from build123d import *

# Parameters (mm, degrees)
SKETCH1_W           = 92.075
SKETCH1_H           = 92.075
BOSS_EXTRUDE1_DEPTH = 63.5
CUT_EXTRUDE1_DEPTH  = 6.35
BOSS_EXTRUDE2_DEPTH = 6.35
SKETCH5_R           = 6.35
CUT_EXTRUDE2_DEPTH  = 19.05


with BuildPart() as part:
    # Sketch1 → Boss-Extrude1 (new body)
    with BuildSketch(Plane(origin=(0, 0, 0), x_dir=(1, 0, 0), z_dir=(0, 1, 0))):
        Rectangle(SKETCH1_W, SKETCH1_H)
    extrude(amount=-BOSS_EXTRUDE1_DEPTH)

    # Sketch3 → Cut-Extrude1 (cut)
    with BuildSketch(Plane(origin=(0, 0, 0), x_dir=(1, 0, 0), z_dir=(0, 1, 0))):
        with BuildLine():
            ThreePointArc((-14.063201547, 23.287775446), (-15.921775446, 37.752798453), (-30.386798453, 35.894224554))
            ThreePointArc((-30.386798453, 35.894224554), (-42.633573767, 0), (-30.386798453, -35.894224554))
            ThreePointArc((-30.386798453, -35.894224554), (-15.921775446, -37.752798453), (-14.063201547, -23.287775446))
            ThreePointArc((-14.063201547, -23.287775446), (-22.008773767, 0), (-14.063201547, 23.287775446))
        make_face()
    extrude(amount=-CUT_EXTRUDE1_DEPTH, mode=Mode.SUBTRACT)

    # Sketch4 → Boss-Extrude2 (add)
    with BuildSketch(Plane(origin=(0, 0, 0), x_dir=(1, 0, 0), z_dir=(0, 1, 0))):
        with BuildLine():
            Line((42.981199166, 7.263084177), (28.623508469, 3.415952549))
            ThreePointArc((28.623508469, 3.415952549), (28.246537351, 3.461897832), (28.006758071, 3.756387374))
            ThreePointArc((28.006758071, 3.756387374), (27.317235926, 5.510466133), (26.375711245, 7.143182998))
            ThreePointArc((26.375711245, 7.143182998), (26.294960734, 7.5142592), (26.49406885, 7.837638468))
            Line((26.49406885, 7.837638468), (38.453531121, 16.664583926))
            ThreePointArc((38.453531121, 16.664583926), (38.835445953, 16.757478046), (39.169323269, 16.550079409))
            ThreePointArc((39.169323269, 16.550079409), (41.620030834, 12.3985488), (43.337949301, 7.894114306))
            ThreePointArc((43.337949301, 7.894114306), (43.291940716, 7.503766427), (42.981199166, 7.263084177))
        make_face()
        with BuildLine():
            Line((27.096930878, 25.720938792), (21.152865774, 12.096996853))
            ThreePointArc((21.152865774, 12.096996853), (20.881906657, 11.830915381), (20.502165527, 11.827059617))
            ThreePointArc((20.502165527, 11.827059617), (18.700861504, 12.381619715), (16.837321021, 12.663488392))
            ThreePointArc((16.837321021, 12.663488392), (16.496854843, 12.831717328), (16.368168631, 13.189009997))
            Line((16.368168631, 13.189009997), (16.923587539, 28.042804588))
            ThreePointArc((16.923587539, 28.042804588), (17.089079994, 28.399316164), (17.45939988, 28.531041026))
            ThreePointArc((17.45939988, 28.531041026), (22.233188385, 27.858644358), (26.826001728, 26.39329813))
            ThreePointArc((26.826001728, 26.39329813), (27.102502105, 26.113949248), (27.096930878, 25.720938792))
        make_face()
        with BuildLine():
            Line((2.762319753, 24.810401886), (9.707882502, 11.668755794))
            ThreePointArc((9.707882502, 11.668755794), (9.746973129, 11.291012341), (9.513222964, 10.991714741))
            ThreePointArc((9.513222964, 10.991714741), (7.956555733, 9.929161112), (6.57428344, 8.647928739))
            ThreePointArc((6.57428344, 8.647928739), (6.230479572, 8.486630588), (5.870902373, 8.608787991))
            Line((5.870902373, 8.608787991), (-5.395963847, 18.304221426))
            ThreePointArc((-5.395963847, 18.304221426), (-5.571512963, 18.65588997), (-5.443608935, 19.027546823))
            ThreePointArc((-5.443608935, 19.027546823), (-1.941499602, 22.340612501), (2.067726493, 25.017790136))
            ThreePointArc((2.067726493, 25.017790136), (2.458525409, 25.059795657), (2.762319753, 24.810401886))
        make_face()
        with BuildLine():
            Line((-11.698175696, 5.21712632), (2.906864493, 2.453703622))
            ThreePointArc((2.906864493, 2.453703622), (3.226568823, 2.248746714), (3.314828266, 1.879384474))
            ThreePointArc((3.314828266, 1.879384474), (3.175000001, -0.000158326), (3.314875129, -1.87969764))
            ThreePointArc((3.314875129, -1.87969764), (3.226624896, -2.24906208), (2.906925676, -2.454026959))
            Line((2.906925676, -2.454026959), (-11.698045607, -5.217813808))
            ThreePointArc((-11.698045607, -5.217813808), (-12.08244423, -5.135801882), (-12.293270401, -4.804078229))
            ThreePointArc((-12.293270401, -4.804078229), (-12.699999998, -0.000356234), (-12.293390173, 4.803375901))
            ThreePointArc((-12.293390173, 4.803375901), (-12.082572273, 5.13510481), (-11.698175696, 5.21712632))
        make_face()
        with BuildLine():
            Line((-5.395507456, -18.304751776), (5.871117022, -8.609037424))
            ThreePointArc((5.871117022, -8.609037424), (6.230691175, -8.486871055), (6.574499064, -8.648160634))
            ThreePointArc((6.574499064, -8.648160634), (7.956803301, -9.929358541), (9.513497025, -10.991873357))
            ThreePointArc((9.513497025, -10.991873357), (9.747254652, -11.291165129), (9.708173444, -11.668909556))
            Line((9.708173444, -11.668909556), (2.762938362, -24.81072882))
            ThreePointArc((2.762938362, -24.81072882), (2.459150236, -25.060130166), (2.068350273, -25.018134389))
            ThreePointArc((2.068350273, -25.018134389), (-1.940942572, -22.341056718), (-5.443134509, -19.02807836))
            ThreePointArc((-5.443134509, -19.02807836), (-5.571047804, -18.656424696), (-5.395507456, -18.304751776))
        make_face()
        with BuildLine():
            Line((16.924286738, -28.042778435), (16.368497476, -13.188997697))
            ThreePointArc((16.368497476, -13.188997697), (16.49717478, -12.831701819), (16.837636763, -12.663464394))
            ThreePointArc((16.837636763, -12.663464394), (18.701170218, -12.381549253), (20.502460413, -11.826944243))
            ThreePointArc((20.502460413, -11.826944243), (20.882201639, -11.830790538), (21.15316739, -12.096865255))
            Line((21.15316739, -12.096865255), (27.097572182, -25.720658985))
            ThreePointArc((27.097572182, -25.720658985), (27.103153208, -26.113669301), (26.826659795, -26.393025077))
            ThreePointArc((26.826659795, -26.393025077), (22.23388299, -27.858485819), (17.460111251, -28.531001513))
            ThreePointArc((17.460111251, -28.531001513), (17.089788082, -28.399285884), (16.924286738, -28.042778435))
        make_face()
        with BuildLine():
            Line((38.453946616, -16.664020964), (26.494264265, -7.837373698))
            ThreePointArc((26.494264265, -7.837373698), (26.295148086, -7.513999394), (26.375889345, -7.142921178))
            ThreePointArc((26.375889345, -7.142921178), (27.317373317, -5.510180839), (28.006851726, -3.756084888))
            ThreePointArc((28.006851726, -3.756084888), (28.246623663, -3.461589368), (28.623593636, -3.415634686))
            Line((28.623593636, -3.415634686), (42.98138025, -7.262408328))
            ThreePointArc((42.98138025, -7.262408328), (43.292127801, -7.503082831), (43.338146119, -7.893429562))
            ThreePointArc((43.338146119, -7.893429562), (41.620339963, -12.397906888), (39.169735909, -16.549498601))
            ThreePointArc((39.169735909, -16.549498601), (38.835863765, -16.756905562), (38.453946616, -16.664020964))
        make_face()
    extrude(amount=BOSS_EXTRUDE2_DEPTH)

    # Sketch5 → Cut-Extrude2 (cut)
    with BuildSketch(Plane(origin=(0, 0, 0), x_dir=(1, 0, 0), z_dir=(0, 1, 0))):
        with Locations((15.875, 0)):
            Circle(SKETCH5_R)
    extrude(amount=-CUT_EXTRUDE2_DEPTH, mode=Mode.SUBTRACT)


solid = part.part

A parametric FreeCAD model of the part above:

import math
import FreeCAD as App
import Part
import Sketcher

V = App.Vector
Q = App.Units.Quantity


def add_polygon(sketch, points):
    """Adds a closed chain of lines whose ends are joined by coincident constraints."""
    first, n = sketch.GeometryCount, len(points)
    for a, b in zip(points, points[1:] + points[:1]):
        sketch.addGeometry(Part.LineSegment(App.Vector(*a, 0), App.Vector(*b, 0)), False)
    for i in range(n):
        sketch.addConstraint(Sketcher.Constraint("Coincident", first + i, 2, first + (i + 1) % n, 1))

doc = App.newDocument("Part")
body = doc.addObject("PartDesign::Body", "Body")

# Sketch on XZ plane
sketch1 = body.newObject("Sketcher::SketchObject", "Sketch")
sketch1.AttachmentSupport = (doc.getObject("XZ_Plane"), [""])
sketch1.MapMode = "FlatFace"
add_polygon(sketch1, [(-46, -46), (-46, 46), (46, 46), (46, -46)])  # lines 0-3
sketch1.addConstraint(Sketcher.Constraint("Vertical", 0))
sketch1.addConstraint(Sketcher.Constraint("Horizontal", 1))
sketch1.addConstraint(Sketcher.Constraint("Vertical", 2))
sketch1.addConstraint(Sketcher.Constraint("Horizontal", 3))
sketch1.addConstraint(Sketcher.Constraint("Symmetric", 0, 2, 2, 2, -1, 1))
sketch1.addConstraint(Sketcher.Constraint("Equal", 3, 0))
sketch1.addConstraint(Sketcher.Constraint("DistanceX", 1, 1, 1, 2, Q("3.625 in")))
pad1 = body.newObject("PartDesign::Pad", "Pad")
pad1.Profile = sketch1
pad1.Length = Q("2.5 in")

# Sketch on XZ plane
sketch2 = body.newObject("Sketcher::SketchObject", "Sketch001")
sketch2.AttachmentSupport = (doc.getObject("XZ_Plane"), [""])
sketch2.MapMode = "FlatFace"
sketch2.addGeometry(Part.ArcOfCircle(Part.Circle(V(-22, -30, 0), V(0, 0, 1), 10), math.radians(-142), math.radians(38)), False)
sketch2.addGeometry(Part.ArcOfCircle(Part.Circle(V(16, 0, 0), V(0, 0, 1), 59), math.radians(142), math.radians(218)), False)
sketch2.addGeometry(Part.ArcOfCircle(Part.Circle(V(-22, 30, 0), V(0, 0, 1), 10), math.radians(-38), math.radians(142)), False)
sketch2.addGeometry(Part.ArcOfCircle(Part.Circle(V(16, 0, 0), V(0, 0, 1), 38), math.radians(142), math.radians(218)), False)
sketch2.addConstraint(Sketcher.Constraint("Tangent", 0, 1, 1, 2))
sketch2.addConstraint(Sketcher.Constraint("Tangent", 1, 1, 2, 2))
sketch2.addConstraint(Sketcher.Constraint("Tangent", 2, 1, 3, 1))
sketch2.addConstraint(Sketcher.Constraint("Tangent", 3, 2, 0, 2))
sketch2.addConstraint(Sketcher.Constraint("Coincident", 3, 3, 1, 3))
sketch2.addConstraint(Sketcher.Constraint("Symmetric", 0, 3, 2, 3, -1))
sketch2.addConstraint(Sketcher.Constraint("Radius", 3, Q("1.5 in")))
sketch2.addConstraint(Sketcher.Constraint("Radius", 0, Q("0.406 in")))
sketch2.addConstraint(Sketcher.Constraint("DistanceY", 0, 3, 2, 3, Q("2.33 in")))
sketch2.addConstraint(Sketcher.Constraint("DistanceX", 0, 3, -1, 1, Q("0.875 in")))
pocket1 = body.newObject("PartDesign::Pocket", "Pocket")
pocket1.Profile = sketch2
pocket1.Length = Q("0.25 in")
pocket1.Reversed = True

# Sketch on XZ plane
sketch3 = body.newObject("Sketcher::SketchObject", "Sketch002")
sketch3.AttachmentSupport = (doc.getObject("XZ_Plane"), [""])
sketch3.MapMode = "FlatFace"
sketch3.addGeometry(Part.LineSegment(V(28.623508, -3.415953, 0), V(42.981199, -7.263084, 0)), False)
sketch3.addGeometry(Part.ArcOfCircle(Part.Circle(V(42.849719, -7.753774, 0), V(0, 0, 1), 0.508), math.radians(-16.037084), math.radians(75)), False)
sketch3.addGeometry(Part.ArcOfCircle(Part.Circle(V(15.875, 0, 0), V(0, 0, 1), 28.575), math.radians(-35.392916), math.radians(-16.037084)), False)
sketch3.addGeometry(Part.ArcOfCircle(Part.Circle(V(38.755202, -16.255856, 0), V(0, 0, 1), 0.508), math.radians(-126.43), math.radians(-35.392916)), False)
sketch3.addGeometry(Part.LineSegment(V(38.453531, -16.664584, 0), V(26.494069, -7.837638, 0)), False)
sketch3.addGeometry(Part.ArcOfCircle(Part.Circle(V(26.79574, -7.42891, 0), V(0, 0, 1), 0.508), math.radians(145.774228), math.radians(233.57)), False)
sketch3.addGeometry(Part.ArcOfCircle(Part.Circle(V(15.875, 0, 0), V(0, 0, 1), 12.7), math.radians(-34.225772), math.radians(-17.204228)), False)
sketch3.addGeometry(Part.ArcOfCircle(Part.Circle(V(28.492028, -3.906643, 0), V(0, 0, 1), 0.508), math.radians(75), math.radians(162.795772)), False)
sketch3.addGeometry(Part.LineSegment(V(21.152866, -12.096997, 0), V(27.096931, -25.720939, 0)), False)
sketch3.addGeometry(Part.ArcOfCircle(Part.Circle(V(26.631317, -25.924084, 0), V(0, 0, 1), 0.508), math.radians(-67.465656), math.radians(23.571429)), False)
sketch3.addGeometry(Part.ArcOfCircle(Part.Circle(V(15.875, 0, 0), V(0, 0, 1), 28.575), math.radians(-86.821487), math.radians(-67.465656)), False)
sketch3.addGeometry(Part.ArcOfCircle(Part.Circle(V(17.431233, -28.023823, 0), V(0, 0, 1), 0.508), math.radians(-177.858571), math.radians(-86.821487)), False)
sketch3.addGeometry(Part.LineSegment(V(16.923588, -28.042805, 0), V(16.368169, -13.18901, 0)), False)
sketch3.addGeometry(Part.ArcOfCircle(Part.Circle(V(16.875814, -13.170028, 0), V(0, 0, 1), 0.508), math.radians(94.345656), math.radians(182.141429)), False)
sketch3.addGeometry(Part.ArcOfCircle(Part.Circle(V(15.875, 0, 0), V(0, 0, 1), 12.7), math.radians(-85.654344), math.radians(-68.632799)), False)
sketch3.addGeometry(Part.ArcOfCircle(Part.Circle(V(20.687252, -12.300142, 0), V(0, 0, 1), 0.508), math.radians(23.571429), math.radians(111.367201)), False)
sketch3.addGeometry(Part.LineSegment(V(9.707883, -11.668756, 0), V(2.76232, -24.810402, 0)), False)
sketch3.addGeometry(Part.ArcOfCircle(Part.Circle(V(2.313189, -24.573029, 0), V(0, 0, 1), 0.508), math.radians(-118.894227), math.radians(-27.857143)), False)
sketch3.addGeometry(Part.ArcOfCircle(Part.Circle(V(15.875, 0, 0), V(0, 0, 1), 28.575), math.radians(-138.250059), math.radians(-118.894227)), False)
sketch3.addGeometry(Part.ArcOfCircle(Part.Circle(V(-5.064611, -18.689279, 0), V(0, 0, 1), 0.508), math.radians(130.712857), math.radians(221.749941)), False)
sketch3.addGeometry(Part.LineSegment(V(-5.395964, -18.304221, 0), V(5.870902, -8.608788, 0)), False)
sketch3.addGeometry(Part.ArcOfCircle(Part.Circle(V(6.202255, -8.993846, 0), V(0, 0, 1), 0.508), math.radians(42.917085), math.radians(130.712857)), False)
sketch3.addGeometry(Part.ArcOfCircle(Part.Circle(V(15.875, 0, 0), V(0, 0, 1), 12.7), math.radians(-137.082915), math.radians(-120.06137)), False)
sketch3.addGeometry(Part.ArcOfCircle(Part.Circle(V(9.258752, -11.431383, 0), V(0, 0, 1), 0.508), math.radians(-27.857143), math.radians(59.93863)), False)
sketch3.addGeometry(Part.LineSegment(V(2.906864, -2.453704, 0), V(-11.698176, -5.217126, 0)), False)
sketch3.addGeometry(Part.ArcOfCircle(Part.Circle(V(-11.792619, -4.717983, 0), V(0, 0, 1), 0.508), math.radians(-170.322798), math.radians(-79.285714)), False)
sketch3.addGeometry(Part.ArcOfCircle(Part.Circle(V(15.875, 0, 0), V(0, 0, 1), 28.575), math.radians(170.32137), math.radians(189.677201)), False)
sketch3.addGeometry(Part.ArcOfCircle(Part.Circle(V(-11.792501, 4.718672, 0), V(0, 0, 1), 0.508), math.radians(79.284286), math.radians(170.32137)), False)
sketch3.addGeometry(Part.LineSegment(V(-11.698046, 5.217814, 0), V(2.906926, 2.454027, 0)), False)
sketch3.addGeometry(Part.ArcOfCircle(Part.Circle(V(2.81247, 1.954886, 0), V(0, 0, 1), 0.508), math.radians(-8.511487), math.radians(79.284286)), False)
sketch3.addGeometry(Part.ArcOfCircle(Part.Circle(V(15.875, 0, 0), V(0, 0, 1), 12.7), math.radians(171.488513), math.radians(188.510058)), False)
sketch3.addGeometry(Part.ArcOfCircle(Part.Circle(V(2.812421, -1.95456, 0), V(0, 0, 1), 0.508), math.radians(-79.285714), math.radians(8.510058)), False)
sketch3.addGeometry(Part.LineSegment(V(5.871117, 8.609037, 0), V(-5.395507, 18.304752, 0)), False)
sketch3.addGeometry(Part.ArcOfCircle(Part.Circle(V(-5.064145, 18.689801, 0), V(0, 0, 1), 0.508), math.radians(138.24863), math.radians(229.285714)), False)
sketch3.addGeometry(Part.ArcOfCircle(Part.Circle(V(15.875, 0, 0), V(0, 0, 1), 28.575), math.radians(118.892799), math.radians(138.24863)), False)
sketch3.addGeometry(Part.ArcOfCircle(Part.Circle(V(2.313802, 24.573368, 0), V(0, 0, 1), 0.508), math.radians(27.855714), math.radians(118.892799)), False)
sketch3.addGeometry(Part.LineSegment(V(2.762938, 24.810729, 0), V(9.708173, 11.66891, 0)), False)
sketch3.addGeometry(Part.ArcOfCircle(Part.Circle(V(9.259037, 11.431548, 0), V(0, 0, 1), 0.508), math.radians(-59.940058), math.radians(27.855714)), False)
sketch3.addGeometry(Part.ArcOfCircle(Part.Circle(V(15.875, 0, 0), V(0, 0, 1), 12.7), math.radians(120.059942), math.radians(137.081487)), False)
sketch3.addGeometry(Part.ArcOfCircle(Part.Circle(V(6.202479, 8.994087, 0), V(0, 0, 1), 0.508), math.radians(-130.714286), math.radians(-42.918513)), False)
sketch3.addGeometry(Part.LineSegment(V(16.368497, 13.188998, 0), V(16.924287, 28.042778, 0)), False)
sketch3.addGeometry(Part.ArcOfCircle(Part.Circle(V(17.431931, 28.023784, 0), V(0, 0, 1), 0.508), math.radians(86.820059), math.radians(177.857143)), False)
sketch3.addGeometry(Part.ArcOfCircle(Part.Circle(V(15.875, 0, 0), V(0, 0, 1), 28.575), math.radians(67.464227), math.radians(86.820059)), False)
sketch3.addGeometry(Part.ArcOfCircle(Part.Circle(V(26.631964, 25.923816, 0), V(0, 0, 1), 0.508), math.radians(-23.572857), math.radians(67.464227)), False)
sketch3.addGeometry(Part.LineSegment(V(27.097572, 25.720659, 0), V(21.153167, 12.096865, 0)), False)
sketch3.addGeometry(Part.ArcOfCircle(Part.Circle(V(20.687559, 12.300022, 0), V(0, 0, 1), 0.508), math.radians(-111.36863), math.radians(-23.572857)), False)
sketch3.addGeometry(Part.ArcOfCircle(Part.Circle(V(15.875, 0, 0), V(0, 0, 1), 12.7), math.radians(68.63137), math.radians(85.652915)), False)
sketch3.addGeometry(Part.ArcOfCircle(Part.Circle(V(16.876142, 13.170003, 0), V(0, 0, 1), 0.508), math.radians(177.857143), math.radians(265.652915)), False)
sketch3.addGeometry(Part.LineSegment(V(26.494264, 7.837374, 0), V(38.453947, 16.664021, 0)), False)
sketch3.addGeometry(Part.ArcOfCircle(Part.Circle(V(38.755607, 16.255285, 0), V(0, 0, 1), 0.508), math.radians(35.391487), math.radians(126.428572)), False)
sketch3.addGeometry(Part.ArcOfCircle(Part.Circle(V(15.875, 0, 0), V(0, 0, 1), 28.575), math.radians(16.035656), math.radians(35.391487)), False)
sketch3.addGeometry(Part.ArcOfCircle(Part.Circle(V(42.849912, 7.753102, 0), V(0, 0, 1), 0.508), math.radians(-75.001429), math.radians(16.035656)), False)
sketch3.addGeometry(Part.LineSegment(V(42.98138, 7.262408, 0), V(28.623594, 3.415635, 0)), False)
sketch3.addGeometry(Part.ArcOfCircle(Part.Circle(V(28.492126, 3.906328, 0), V(0, 0, 1), 0.508), math.radians(-162.797201), math.radians(-75.001429)), False)
sketch3.addGeometry(Part.ArcOfCircle(Part.Circle(V(15.875, 0, 0), V(0, 0, 1), 12.7), math.radians(17.202799), math.radians(34.224344)), False)
sketch3.addGeometry(Part.ArcOfCircle(Part.Circle(V(26.795925, 7.428638, 0), V(0, 0, 1), 0.508), math.radians(126.428572), math.radians(214.224344)), False)
sketch3.addConstraint(Sketcher.Constraint("Coincident", 0, 2, 1, 2))
sketch3.addConstraint(Sketcher.Constraint("Coincident", 1, 1, 2, 2))
sketch3.addConstraint(Sketcher.Constraint("Coincident", 2, 1, 3, 2))
sketch3.addConstraint(Sketcher.Constraint("Coincident", 3, 1, 4, 1))
sketch3.addConstraint(Sketcher.Constraint("Coincident", 4, 2, 5, 2))
sketch3.addConstraint(Sketcher.Constraint("Coincident", 5, 1, 6, 1))
sketch3.addConstraint(Sketcher.Constraint("Coincident", 6, 2, 7, 2))
sketch3.addConstraint(Sketcher.Constraint("Coincident", 7, 1, 0, 1))
sketch3.addConstraint(Sketcher.Constraint("Coincident", 8, 2, 9, 2))
sketch3.addConstraint(Sketcher.Constraint("Coincident", 9, 1, 10, 2))
sketch3.addConstraint(Sketcher.Constraint("Coincident", 10, 1, 11, 2))
sketch3.addConstraint(Sketcher.Constraint("Coincident", 11, 1, 12, 1))
sketch3.addConstraint(Sketcher.Constraint("Coincident", 12, 2, 13, 2))
sketch3.addConstraint(Sketcher.Constraint("Coincident", 13, 1, 14, 1))
sketch3.addConstraint(Sketcher.Constraint("Coincident", 14, 2, 15, 2))
sketch3.addConstraint(Sketcher.Constraint("Coincident", 15, 1, 8, 1))
sketch3.addConstraint(Sketcher.Constraint("Coincident", 16, 2, 17, 2))
sketch3.addConstraint(Sketcher.Constraint("Coincident", 17, 1, 18, 2))
sketch3.addConstraint(Sketcher.Constraint("Coincident", 18, 1, 19, 2))
sketch3.addConstraint(Sketcher.Constraint("Coincident", 19, 1, 20, 1))
sketch3.addConstraint(Sketcher.Constraint("Coincident", 20, 2, 21, 2))
sketch3.addConstraint(Sketcher.Constraint("Coincident", 21, 1, 22, 1))
sketch3.addConstraint(Sketcher.Constraint("Coincident", 22, 2, 23, 2))
sketch3.addConstraint(Sketcher.Constraint("Coincident", 23, 1, 16, 1))
sketch3.addConstraint(Sketcher.Constraint("Coincident", 24, 2, 25, 2))
sketch3.addConstraint(Sketcher.Constraint("Coincident", 25, 1, 26, 2))
sketch3.addConstraint(Sketcher.Constraint("Coincident", 26, 1, 27, 2))
sketch3.addConstraint(Sketcher.Constraint("Coincident", 27, 1, 28, 1))
sketch3.addConstraint(Sketcher.Constraint("Coincident", 28, 2, 29, 2))
sketch3.addConstraint(Sketcher.Constraint("Coincident", 29, 1, 30, 1))
sketch3.addConstraint(Sketcher.Constraint("Coincident", 30, 2, 31, 2))
sketch3.addConstraint(Sketcher.Constraint("Coincident", 31, 1, 24, 1))
sketch3.addConstraint(Sketcher.Constraint("Coincident", 32, 2, 33, 2))
sketch3.addConstraint(Sketcher.Constraint("Coincident", 33, 1, 34, 2))
sketch3.addConstraint(Sketcher.Constraint("Coincident", 34, 1, 35, 2))
sketch3.addConstraint(Sketcher.Constraint("Coincident", 35, 1, 36, 1))
sketch3.addConstraint(Sketcher.Constraint("Coincident", 36, 2, 37, 2))
sketch3.addConstraint(Sketcher.Constraint("Coincident", 37, 1, 38, 1))
sketch3.addConstraint(Sketcher.Constraint("Coincident", 38, 2, 39, 2))
sketch3.addConstraint(Sketcher.Constraint("Coincident", 39, 1, 32, 1))
sketch3.addConstraint(Sketcher.Constraint("Coincident", 40, 2, 41, 2))
sketch3.addConstraint(Sketcher.Constraint("Coincident", 41, 1, 42, 2))
sketch3.addConstraint(Sketcher.Constraint("Coincident", 42, 1, 43, 2))
sketch3.addConstraint(Sketcher.Constraint("Coincident", 43, 1, 44, 1))
sketch3.addConstraint(Sketcher.Constraint("Coincident", 44, 2, 45, 2))
sketch3.addConstraint(Sketcher.Constraint("Coincident", 45, 1, 46, 1))
sketch3.addConstraint(Sketcher.Constraint("Coincident", 46, 2, 47, 2))
sketch3.addConstraint(Sketcher.Constraint("Coincident", 47, 1, 40, 1))
sketch3.addConstraint(Sketcher.Constraint("Coincident", 48, 2, 49, 2))
sketch3.addConstraint(Sketcher.Constraint("Coincident", 49, 1, 50, 2))
sketch3.addConstraint(Sketcher.Constraint("Coincident", 50, 1, 51, 2))
sketch3.addConstraint(Sketcher.Constraint("Coincident", 51, 1, 52, 1))
sketch3.addConstraint(Sketcher.Constraint("Coincident", 52, 2, 53, 2))
sketch3.addConstraint(Sketcher.Constraint("Coincident", 53, 1, 54, 1))
sketch3.addConstraint(Sketcher.Constraint("Coincident", 54, 2, 55, 2))
sketch3.addConstraint(Sketcher.Constraint("Coincident", 55, 1, 48, 1))
sketch3.addConstraint(Sketcher.Constraint("Coincident", 6, 3, 2, 3))
sketch3.addConstraint(Sketcher.Constraint("Coincident", 10, 3, 2, 3))
sketch3.addConstraint(Sketcher.Constraint("Coincident", 14, 3, 2, 3))
sketch3.addConstraint(Sketcher.Constraint("Coincident", 18, 3, 2, 3))
sketch3.addConstraint(Sketcher.Constraint("Coincident", 22, 3, 2, 3))
sketch3.addConstraint(Sketcher.Constraint("Coincident", 26, 3, 2, 3))
sketch3.addConstraint(Sketcher.Constraint("Coincident", 30, 3, 2, 3))
sketch3.addConstraint(Sketcher.Constraint("Coincident", 34, 3, 2, 3))
sketch3.addConstraint(Sketcher.Constraint("Coincident", 38, 3, 2, 3))
sketch3.addConstraint(Sketcher.Constraint("Coincident", 42, 3, 2, 3))
sketch3.addConstraint(Sketcher.Constraint("Coincident", 46, 3, 2, 3))
sketch3.addConstraint(Sketcher.Constraint("Coincident", 50, 3, 2, 3))
sketch3.addConstraint(Sketcher.Constraint("Coincident", 54, 3, 2, 3))
sketch3.addConstraint(Sketcher.Constraint("PointOnObject", 2, 3, -1))
sketch3.addConstraint(Sketcher.Constraint("Radius", 6, Q("0.5 in")))
sketch3.addConstraint(Sketcher.Constraint("Radius", 14, Q("0.5 in")))
sketch3.addConstraint(Sketcher.Constraint("Radius", 22, Q("0.5 in")))
sketch3.addConstraint(Sketcher.Constraint("Radius", 30, Q("0.5 in")))
sketch3.addConstraint(Sketcher.Constraint("Radius", 38, Q("0.5 in")))
sketch3.addConstraint(Sketcher.Constraint("Radius", 46, Q("0.5 in")))
sketch3.addConstraint(Sketcher.Constraint("Radius", 54, Q("0.5 in")))
sketch3.addConstraint(Sketcher.Constraint("Radius", 1, Q("0.02 in")))
sketch3.addConstraint(Sketcher.Constraint("Radius", 3, Q("0.02 in")))
sketch3.addConstraint(Sketcher.Constraint("Radius", 5, Q("0.02 in")))
sketch3.addConstraint(Sketcher.Constraint("Radius", 7, Q("0.02 in")))
sketch3.addConstraint(Sketcher.Constraint("Radius", 9, Q("0.02 in")))
sketch3.addConstraint(Sketcher.Constraint("Radius", 11, Q("0.02 in")))
sketch3.addConstraint(Sketcher.Constraint("Radius", 13, Q("0.02 in")))
sketch3.addConstraint(Sketcher.Constraint("Radius", 15, Q("0.02 in")))
sketch3.addConstraint(Sketcher.Constraint("Radius", 17, Q("0.02 in")))
sketch3.addConstraint(Sketcher.Constraint("Radius", 19, Q("0.02 in")))
sketch3.addConstraint(Sketcher.Constraint("Radius", 21, Q("0.02 in")))
sketch3.addConstraint(Sketcher.Constraint("Radius", 23, Q("0.02 in")))
sketch3.addConstraint(Sketcher.Constraint("Radius", 25, Q("0.02 in")))
sketch3.addConstraint(Sketcher.Constraint("Radius", 27, Q("0.02 in")))
sketch3.addConstraint(Sketcher.Constraint("Radius", 29, Q("0.02 in")))
sketch3.addConstraint(Sketcher.Constraint("Radius", 31, Q("0.02 in")))
sketch3.addConstraint(Sketcher.Constraint("Radius", 33, Q("0.02 in")))
sketch3.addConstraint(Sketcher.Constraint("Radius", 35, Q("0.02 in")))
sketch3.addConstraint(Sketcher.Constraint("Radius", 37, Q("0.02 in")))
sketch3.addConstraint(Sketcher.Constraint("Radius", 39, Q("0.02 in")))
sketch3.addConstraint(Sketcher.Constraint("Radius", 41, Q("0.02 in")))
sketch3.addConstraint(Sketcher.Constraint("Radius", 43, Q("0.02 in")))
sketch3.addConstraint(Sketcher.Constraint("Radius", 45, Q("0.02 in")))
sketch3.addConstraint(Sketcher.Constraint("Radius", 47, Q("0.02 in")))
sketch3.addConstraint(Sketcher.Constraint("Radius", 49, Q("0.02 in")))
sketch3.addConstraint(Sketcher.Constraint("Radius", 51, Q("0.02 in")))
sketch3.addConstraint(Sketcher.Constraint("Radius", 53, Q("0.02 in")))
sketch3.addConstraint(Sketcher.Constraint("Radius", 55, Q("0.02 in")))
sketch3.addConstraint(Sketcher.Constraint("Radius", 2, Q("1.125 in")))
sketch3.addConstraint(Sketcher.Constraint("Radius", 10, Q("1.125 in")))
sketch3.addConstraint(Sketcher.Constraint("Radius", 18, Q("1.125 in")))
sketch3.addConstraint(Sketcher.Constraint("Radius", 26, Q("1.125 in")))
sketch3.addConstraint(Sketcher.Constraint("Radius", 34, Q("1.125 in")))
sketch3.addConstraint(Sketcher.Constraint("Radius", 42, Q("1.125 in")))
sketch3.addConstraint(Sketcher.Constraint("Radius", 50, Q("1.125 in")))
sketch3.addConstraint(Sketcher.Constraint("DistanceX", -1, 1, 2, 3, Q("0.625 in")))
sketch3.addConstraint(Sketcher.Constraint("DistanceY", 11, 3, -1, 1, Q("1.1033001 in")))
sketch3.addConstraint(Sketcher.Constraint("DistanceX", -1, 1, 23, 1, Q("0.3822001 in")))
sketch3.addConstraint(Sketcher.Constraint("DistanceY", 23, 1, -1, 1, Q("0.4593998 in")))
sketch3.addConstraint(Sketcher.Constraint("DistanceX", -1, 1, 3, 3, 38.755202))
sketch3.addConstraint(Sketcher.Constraint("DistanceX", 27, 3, -1, 1, 11.792501))
sketch3.addConstraint(Sketcher.Constraint("DistanceY", -1, 1, 33, 3, 18.689801))
sketch3.addConstraint(Sketcher.Constraint("DistanceX", -1, 1, 35, 3, 2.313802))
sketch3.addConstraint(Sketcher.Constraint("DistanceY", -1, 1, 51, 3, 7.753102))
sketch3.addConstraint(Sketcher.Constraint("DistanceX", -1, 1, 0, 2, 42.981199))
sketch3.addConstraint(Sketcher.Constraint("DistanceX", -1, 1, 9, 1, 26.826002))
sketch3.addConstraint(Sketcher.Constraint("DistanceX", -1, 1, 10, 1, 17.4594))
sketch3.addConstraint(Sketcher.Constraint("DistanceY", 16, 2, -1, 1, 24.810402))
sketch3.addConstraint(Sketcher.Constraint("DistanceX", -1, 1, 38, 2, 6.574499))
sketch3.addConstraint(Sketcher.Constraint("DistanceY", -1, 1, 41, 1, 28.531002))
sketch3.addConstraint(Sketcher.Constraint("DistanceY", -1, 1, 49, 1, 16.549499))
sketch3.addConstraint(Sketcher.Constraint("DistanceX", -1, 1, 1, 3, 42.849719))
sketch3.addConstraint(Sketcher.Constraint("DistanceX", -1, 1, 5, 3, 26.79574))
sketch3.addConstraint(Sketcher.Constraint("DistanceX", -1, 1, 7, 3, 28.492028))
sketch3.addConstraint(Sketcher.Constraint("DistanceX", -1, 1, 17, 3, 2.313189))
sketch3.addConstraint(Sketcher.Constraint("DistanceX", 19, 3, -1, 1, 5.064611))
sketch3.addConstraint(Sketcher.Constraint("DistanceX", 25, 3, -1, 1, 11.792619))
sketch3.addConstraint(Sketcher.Constraint("DistanceX", -1, 1, 29, 3, 2.81247))
sketch3.addConstraint(Sketcher.Constraint("DistanceX", -1, 1, 31, 3, 2.812421))
sketch3.addConstraint(Sketcher.Constraint("DistanceY", -1, 1, 37, 3, 11.431548))
sketch3.addConstraint(Sketcher.Constraint("DistanceX", -1, 1, 39, 3, 6.202479))
sketch3.addConstraint(Sketcher.Constraint("DistanceX", -1, 1, 41, 3, 17.431931))
sketch3.addConstraint(Sketcher.Constraint("DistanceX", -1, 1, 45, 3, 20.687559))
sketch3.addConstraint(Sketcher.Constraint("DistanceY", -1, 1, 53, 3, 3.906328))
sketch3.addConstraint(Sketcher.Constraint("DistanceY", -1, 1, 55, 3, 7.428638))
sketch3.addConstraint(Sketcher.Constraint("DistanceX", -1, 1, 1, 1, 43.337949))
sketch3.addConstraint(Sketcher.Constraint("DistanceY", 2, 1, -1, 1, 16.550079))
sketch3.addConstraint(Sketcher.Constraint("DistanceX", -1, 1, 3, 1, 38.453531))
sketch3.addConstraint(Sketcher.Constraint("DistanceX", -1, 1, 4, 2, 26.494069))
sketch3.addConstraint(Sketcher.Constraint("DistanceX", -1, 1, 5, 1, 26.375711))
sketch3.addConstraint(Sketcher.Constraint("DistanceX", -1, 1, 6, 2, 28.006758))
sketch3.addConstraint(Sketcher.Constraint("DistanceX", -1, 1, 7, 1, 28.623508))
sketch3.addConstraint(Sketcher.Constraint("DistanceX", -1, 1, 8, 2, 27.096931))
sketch3.addConstraint(Sketcher.Constraint("DistanceY", 8, 2, -1, 1, 25.720939))
sketch3.addConstraint(Sketcher.Constraint("DistanceX", -1, 1, 12, 2, 16.368169))
sketch3.addConstraint(Sketcher.Constraint("DistanceY", 12, 2, -1, 1, 13.18901))
sketch3.addConstraint(Sketcher.Constraint("DistanceX", -1, 1, 13, 1, 16.837321))
sketch3.addConstraint(Sketcher.Constraint("DistanceY", 14, 2, -1, 1, 11.82706))
sketch3.addConstraint(Sketcher.Constraint("DistanceY", 17, 1, -1, 1, 25.01779))
sketch3.addConstraint(Sketcher.Constraint("DistanceX", 18, 1, -1, 1, 5.443609))
sketch3.addConstraint(Sketcher.Constraint("DistanceY", 19, 1, -1, 1, 18.304221))
sketch3.addConstraint(Sketcher.Constraint("DistanceY", 21, 1, -1, 1, 8.647929))
sketch3.addConstraint(Sketcher.Constraint("DistanceX", 25, 1, -1, 1, 12.29339))
sketch3.addConstraint(Sketcher.Constraint("DistanceX", 26, 1, -1, 1, 12.29327))
sketch3.addConstraint(Sketcher.Constraint("DistanceX", -1, 1, 30, 2, 3.314828))
sketch3.addConstraint(Sketcher.Constraint("DistanceY", -1, 1, 32, 2, 18.304752))
sketch3.addConstraint(Sketcher.Constraint("DistanceY", -1, 1, 33, 1, 19.028078))
sketch3.addConstraint(Sketcher.Constraint("DistanceX", -1, 1, 34, 1, 2.06835))
sketch3.addConstraint(Sketcher.Constraint("DistanceX", -1, 1, 35, 1, 2.762938))
sketch3.addConstraint(Sketcher.Constraint("DistanceY", -1, 1, 36, 2, 11.66891))
sketch3.addConstraint(Sketcher.Constraint("DistanceY", -1, 1, 40, 2, 28.042778))
sketch3.addConstraint(Sketcher.Constraint("DistanceX", -1, 1, 42, 1, 26.82666))
sketch3.addConstraint(Sketcher.Constraint("DistanceY", -1, 1, 43, 1, 25.720659))
sketch3.addConstraint(Sketcher.Constraint("DistanceX", -1, 1, 45, 1, 20.50246))
sketch3.addConstraint(Sketcher.Constraint("DistanceY", -1, 1, 48, 2, 16.664021))
sketch3.addConstraint(Sketcher.Constraint("DistanceY", -1, 1, 50, 1, 7.89343))
sketch3.addConstraint(Sketcher.Constraint("DistanceX", -1, 1, 51, 1, 42.98138))
sketch3.addConstraint(Sketcher.Constraint("DistanceX", -1, 1, 53, 1, 28.006852))
sketch3.addConstraint(Sketcher.Constraint("DistanceX", -1, 1, 54, 2, 26.375889))
sketch3.addConstraint(Sketcher.Constraint("Distance", 8, 14.864175))
sketch3.addConstraint(Sketcher.Constraint("Distance", 12, 14.864175))
sketch3.addConstraint(Sketcher.Constraint("Distance", 20, 14.864175))
sketch3.addConstraint(Sketcher.Constraint("Distance", 24, 14.864175))
sketch3.addConstraint(Sketcher.Constraint("Distance", 28, 14.864175))
sketch3.addConstraint(Sketcher.Constraint("Distance", 32, 14.864175))
sketch3.addConstraint(Sketcher.Constraint("Distance", 40, 14.864175))
sketch3.addConstraint(Sketcher.Constraint("Distance", 44, 14.864175))
sketch3.addConstraint(Sketcher.Constraint("Distance", 48, 14.864175))
sketch3.addConstraint(Sketcher.Constraint("Distance", 52, 14.864175))
sketch3.addConstraint(Sketcher.Constraint("DistanceX", -1, 1, 15, 3, 20.687252))
sketch3.addConstraint(Sketcher.Constraint("DistanceX", -1, 1, 21, 3, 6.202255))
sketch3.addConstraint(Sketcher.Constraint("DistanceX", -1, 1, 43, 3, 26.631964))
sketch3.addConstraint(Sketcher.Constraint("DistanceX", -1, 1, 47, 3, 16.876142))
sketch3.addConstraint(Sketcher.Constraint("DistanceX", -1, 1, 49, 3, 38.755607))
sketch3.addConstraint(Sketcher.Constraint("DistanceX", -1, 1, 22, 2, 9.513223))
sketch3.addConstraint(Sketcher.Constraint("DistanceX", 24, 2, -1, 1, 11.698176))
sketch3.addConstraint(Sketcher.Constraint("DistanceX", 27, 1, -1, 1, 11.698046))
sketch3.addConstraint(Sketcher.Constraint("DistanceX", -1, 1, 29, 1, 3.314875))
sketch3.addConstraint(Sketcher.Constraint("DistanceX", -1, 1, 37, 1, 9.513497))
sketch3.addConstraint(Sketcher.Constraint("DistanceX", -1, 1, 46, 2, 16.837637))
pad2 = body.newObject("PartDesign::Pad", "Pad001")
pad2.Profile = sketch3
pad2.Length = Q("0.25 in")
pad2.Reversed = True

# Sketch on XZ plane
sketch4 = body.newObject("Sketcher::SketchObject", "Sketch003")
sketch4.AttachmentSupport = (doc.getObject("XZ_Plane"), [""])
sketch4.MapMode = "FlatFace"
sketch4.addGeometry(Part.Circle(V(16, 0, 0), V(0, 0, 1), 6), False)
sketch4.addConstraint(Sketcher.Constraint("PointOnObject", 0, 3, -1))
sketch4.addConstraint(Sketcher.Constraint("Diameter", 0, Q("0.5 in")))
sketch4.addConstraint(Sketcher.Constraint("DistanceX", -1, 1, 0, 3, Q("0.625 in")))
pocket2 = body.newObject("PartDesign::Pocket", "Pocket001")
pocket2.Profile = sketch4
pocket2.Length = Q("0.75 in")
pocket2.Reversed = True

doc.recompute()
